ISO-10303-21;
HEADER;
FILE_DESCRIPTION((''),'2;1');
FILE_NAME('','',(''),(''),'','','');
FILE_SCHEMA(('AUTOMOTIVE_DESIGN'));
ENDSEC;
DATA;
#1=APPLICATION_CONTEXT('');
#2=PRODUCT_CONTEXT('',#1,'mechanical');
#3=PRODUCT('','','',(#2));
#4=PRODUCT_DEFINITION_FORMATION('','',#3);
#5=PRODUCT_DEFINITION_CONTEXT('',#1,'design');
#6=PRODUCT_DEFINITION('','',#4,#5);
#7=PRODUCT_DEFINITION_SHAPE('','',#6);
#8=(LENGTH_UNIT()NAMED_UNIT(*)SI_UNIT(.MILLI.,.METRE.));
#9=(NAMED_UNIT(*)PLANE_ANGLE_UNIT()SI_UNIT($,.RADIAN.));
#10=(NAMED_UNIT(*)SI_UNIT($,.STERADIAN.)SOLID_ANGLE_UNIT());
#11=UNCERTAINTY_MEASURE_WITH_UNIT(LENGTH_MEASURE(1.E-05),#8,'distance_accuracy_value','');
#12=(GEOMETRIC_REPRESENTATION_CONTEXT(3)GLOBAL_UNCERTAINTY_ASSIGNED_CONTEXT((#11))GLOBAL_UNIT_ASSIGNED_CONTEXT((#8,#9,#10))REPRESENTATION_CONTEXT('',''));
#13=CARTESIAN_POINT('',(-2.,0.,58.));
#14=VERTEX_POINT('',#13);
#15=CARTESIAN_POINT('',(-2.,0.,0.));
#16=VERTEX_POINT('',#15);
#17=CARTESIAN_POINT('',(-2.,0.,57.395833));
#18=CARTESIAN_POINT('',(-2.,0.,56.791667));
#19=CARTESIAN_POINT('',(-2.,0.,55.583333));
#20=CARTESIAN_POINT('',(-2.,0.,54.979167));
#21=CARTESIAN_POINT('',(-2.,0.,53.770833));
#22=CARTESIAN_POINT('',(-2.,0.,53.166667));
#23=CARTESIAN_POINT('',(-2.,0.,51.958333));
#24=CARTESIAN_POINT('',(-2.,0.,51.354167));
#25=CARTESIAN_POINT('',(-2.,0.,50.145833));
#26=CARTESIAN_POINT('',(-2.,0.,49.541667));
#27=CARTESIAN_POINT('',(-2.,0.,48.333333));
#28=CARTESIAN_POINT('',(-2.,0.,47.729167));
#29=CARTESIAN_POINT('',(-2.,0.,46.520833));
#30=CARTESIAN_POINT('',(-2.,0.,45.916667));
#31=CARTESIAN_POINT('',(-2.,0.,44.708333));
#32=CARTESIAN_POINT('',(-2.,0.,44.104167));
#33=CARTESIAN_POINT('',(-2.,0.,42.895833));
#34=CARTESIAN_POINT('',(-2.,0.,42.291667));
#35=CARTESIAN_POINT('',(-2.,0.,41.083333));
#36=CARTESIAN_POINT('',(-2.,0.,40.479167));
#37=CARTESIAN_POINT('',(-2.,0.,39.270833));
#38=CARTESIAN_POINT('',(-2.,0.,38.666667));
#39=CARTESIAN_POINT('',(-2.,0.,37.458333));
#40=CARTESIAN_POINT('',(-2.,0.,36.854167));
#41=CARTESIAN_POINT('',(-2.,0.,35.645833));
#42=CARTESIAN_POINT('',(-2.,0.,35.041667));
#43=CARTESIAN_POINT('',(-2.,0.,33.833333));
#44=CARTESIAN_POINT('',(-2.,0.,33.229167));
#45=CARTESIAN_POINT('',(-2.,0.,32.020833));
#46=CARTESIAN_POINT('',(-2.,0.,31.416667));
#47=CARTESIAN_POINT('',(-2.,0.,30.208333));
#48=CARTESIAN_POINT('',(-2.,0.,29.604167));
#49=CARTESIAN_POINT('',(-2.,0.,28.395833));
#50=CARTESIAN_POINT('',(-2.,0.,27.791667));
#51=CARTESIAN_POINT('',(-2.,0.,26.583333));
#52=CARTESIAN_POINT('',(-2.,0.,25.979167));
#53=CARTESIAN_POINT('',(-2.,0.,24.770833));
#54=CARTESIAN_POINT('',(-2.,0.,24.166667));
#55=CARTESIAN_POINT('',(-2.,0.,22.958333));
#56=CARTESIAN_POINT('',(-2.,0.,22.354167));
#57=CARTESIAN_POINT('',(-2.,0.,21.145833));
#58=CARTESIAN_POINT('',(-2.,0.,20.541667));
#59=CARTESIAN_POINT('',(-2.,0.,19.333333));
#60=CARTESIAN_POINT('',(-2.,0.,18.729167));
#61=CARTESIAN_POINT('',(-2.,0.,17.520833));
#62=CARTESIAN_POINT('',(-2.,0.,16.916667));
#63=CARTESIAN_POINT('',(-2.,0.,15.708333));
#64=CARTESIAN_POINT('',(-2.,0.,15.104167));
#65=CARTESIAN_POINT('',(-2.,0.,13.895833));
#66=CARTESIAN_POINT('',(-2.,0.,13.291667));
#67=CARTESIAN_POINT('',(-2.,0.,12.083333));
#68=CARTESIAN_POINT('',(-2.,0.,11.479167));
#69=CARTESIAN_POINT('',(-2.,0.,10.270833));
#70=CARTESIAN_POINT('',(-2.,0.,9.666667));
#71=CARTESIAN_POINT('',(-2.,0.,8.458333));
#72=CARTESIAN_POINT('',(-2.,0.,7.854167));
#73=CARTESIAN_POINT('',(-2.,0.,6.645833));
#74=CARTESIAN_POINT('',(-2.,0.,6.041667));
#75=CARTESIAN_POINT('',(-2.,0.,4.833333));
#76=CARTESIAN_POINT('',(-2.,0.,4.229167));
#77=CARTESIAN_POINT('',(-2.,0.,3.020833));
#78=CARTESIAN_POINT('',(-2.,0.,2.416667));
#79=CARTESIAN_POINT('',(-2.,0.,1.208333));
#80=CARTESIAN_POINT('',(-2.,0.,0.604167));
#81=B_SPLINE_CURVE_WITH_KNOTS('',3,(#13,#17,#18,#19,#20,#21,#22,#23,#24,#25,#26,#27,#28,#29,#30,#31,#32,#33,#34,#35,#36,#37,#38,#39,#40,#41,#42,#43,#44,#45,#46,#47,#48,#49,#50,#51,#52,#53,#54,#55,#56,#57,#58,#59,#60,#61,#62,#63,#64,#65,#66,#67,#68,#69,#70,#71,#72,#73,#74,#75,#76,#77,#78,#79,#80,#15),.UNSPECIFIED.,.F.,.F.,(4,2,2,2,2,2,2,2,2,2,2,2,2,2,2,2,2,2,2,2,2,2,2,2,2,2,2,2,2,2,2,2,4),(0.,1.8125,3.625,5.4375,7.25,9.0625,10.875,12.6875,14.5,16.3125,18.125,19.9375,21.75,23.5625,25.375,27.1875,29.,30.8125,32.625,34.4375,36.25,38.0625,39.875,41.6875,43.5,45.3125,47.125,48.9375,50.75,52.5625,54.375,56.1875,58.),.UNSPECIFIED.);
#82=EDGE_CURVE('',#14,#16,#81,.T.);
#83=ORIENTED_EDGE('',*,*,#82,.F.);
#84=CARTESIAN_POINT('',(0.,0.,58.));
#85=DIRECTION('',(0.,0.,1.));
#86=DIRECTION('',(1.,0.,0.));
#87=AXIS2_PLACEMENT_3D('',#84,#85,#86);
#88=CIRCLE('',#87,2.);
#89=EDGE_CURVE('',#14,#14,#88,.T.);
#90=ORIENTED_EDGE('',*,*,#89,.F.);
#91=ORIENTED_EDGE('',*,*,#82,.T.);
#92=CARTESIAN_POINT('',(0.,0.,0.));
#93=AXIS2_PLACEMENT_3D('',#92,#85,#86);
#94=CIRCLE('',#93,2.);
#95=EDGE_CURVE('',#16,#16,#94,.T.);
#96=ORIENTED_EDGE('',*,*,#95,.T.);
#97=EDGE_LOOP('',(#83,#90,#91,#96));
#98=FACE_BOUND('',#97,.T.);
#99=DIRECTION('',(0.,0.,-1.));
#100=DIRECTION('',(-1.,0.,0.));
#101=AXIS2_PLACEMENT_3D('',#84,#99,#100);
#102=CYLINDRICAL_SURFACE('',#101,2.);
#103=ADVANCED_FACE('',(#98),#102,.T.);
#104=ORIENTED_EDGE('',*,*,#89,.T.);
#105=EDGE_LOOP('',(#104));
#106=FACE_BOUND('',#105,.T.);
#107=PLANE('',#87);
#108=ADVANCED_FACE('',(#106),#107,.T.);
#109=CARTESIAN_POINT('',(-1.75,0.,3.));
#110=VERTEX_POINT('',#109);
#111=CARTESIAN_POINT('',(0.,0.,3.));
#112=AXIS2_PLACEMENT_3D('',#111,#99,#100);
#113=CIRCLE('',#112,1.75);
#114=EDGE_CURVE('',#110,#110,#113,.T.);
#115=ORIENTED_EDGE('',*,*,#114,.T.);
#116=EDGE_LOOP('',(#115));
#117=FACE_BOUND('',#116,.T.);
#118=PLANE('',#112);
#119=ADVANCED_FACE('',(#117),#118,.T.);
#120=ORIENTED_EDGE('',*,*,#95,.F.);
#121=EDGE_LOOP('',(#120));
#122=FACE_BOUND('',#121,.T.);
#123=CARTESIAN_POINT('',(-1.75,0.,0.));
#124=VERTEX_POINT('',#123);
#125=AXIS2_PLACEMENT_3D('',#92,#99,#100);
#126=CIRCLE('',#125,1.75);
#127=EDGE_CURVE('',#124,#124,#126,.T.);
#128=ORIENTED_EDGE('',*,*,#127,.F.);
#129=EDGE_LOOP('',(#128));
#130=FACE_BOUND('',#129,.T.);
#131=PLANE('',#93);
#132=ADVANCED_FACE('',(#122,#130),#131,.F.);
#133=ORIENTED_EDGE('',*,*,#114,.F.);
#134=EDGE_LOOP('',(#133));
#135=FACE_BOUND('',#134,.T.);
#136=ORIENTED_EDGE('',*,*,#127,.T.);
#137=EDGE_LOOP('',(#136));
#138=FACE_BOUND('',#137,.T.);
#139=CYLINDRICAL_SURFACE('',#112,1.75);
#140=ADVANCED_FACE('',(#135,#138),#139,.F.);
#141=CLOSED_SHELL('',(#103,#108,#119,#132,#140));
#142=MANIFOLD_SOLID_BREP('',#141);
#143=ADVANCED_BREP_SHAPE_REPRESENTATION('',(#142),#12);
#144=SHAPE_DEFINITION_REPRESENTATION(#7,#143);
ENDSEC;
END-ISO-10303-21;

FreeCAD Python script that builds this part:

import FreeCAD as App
import Part
import Sketcher

doc = App.newDocument("Part")
body = doc.addObject("PartDesign::Body", "Body")

# Sketch on XY plane
sketch1 = body.newObject("Sketcher::SketchObject", "Sketch")
sketch1.AttachmentSupport = (doc.getObject("XY_Plane"), [""])
sketch1.MapMode = "FlatFace"
sketch1.addGeometry(Part.Circle(App.Vector(0, 0, 0), App.Vector(0, 0, 1), 2), False)
sketch1.addConstraint(Sketcher.Constraint("Coincident", 0, 3, -1, 1))
sketch1.addConstraint(Sketcher.Constraint("Diameter", 0, 4.0))
pad1 = body.newObject("PartDesign::Pad", "Pad")
pad1.Profile = sketch1
pad1.Length = 58

# Sketch on XY plane
sketch2 = body.newObject("Sketcher::SketchObject", "Sketch001")
sketch2.AttachmentSupport = (doc.getObject("XY_Plane"), [""])
sketch2.MapMode = "FlatFace"
sketch2.addGeometry(Part.Circle(App.Vector(0, 0, 0), App.Vector(0, 0, 1), 1.75), False)
sketch2.addConstraint(Sketcher.Constraint("Coincident", 0, 3, -1, 1))
sketch2.addConstraint(Sketcher.Constraint("Diameter", 0, 3.5))
pocket1 = body.newObject("PartDesign::Pocket", "Pocket")
pocket1.Profile = sketch2
pocket1.Length = 3
pocket1.Reversed = True

doc.recompute()
